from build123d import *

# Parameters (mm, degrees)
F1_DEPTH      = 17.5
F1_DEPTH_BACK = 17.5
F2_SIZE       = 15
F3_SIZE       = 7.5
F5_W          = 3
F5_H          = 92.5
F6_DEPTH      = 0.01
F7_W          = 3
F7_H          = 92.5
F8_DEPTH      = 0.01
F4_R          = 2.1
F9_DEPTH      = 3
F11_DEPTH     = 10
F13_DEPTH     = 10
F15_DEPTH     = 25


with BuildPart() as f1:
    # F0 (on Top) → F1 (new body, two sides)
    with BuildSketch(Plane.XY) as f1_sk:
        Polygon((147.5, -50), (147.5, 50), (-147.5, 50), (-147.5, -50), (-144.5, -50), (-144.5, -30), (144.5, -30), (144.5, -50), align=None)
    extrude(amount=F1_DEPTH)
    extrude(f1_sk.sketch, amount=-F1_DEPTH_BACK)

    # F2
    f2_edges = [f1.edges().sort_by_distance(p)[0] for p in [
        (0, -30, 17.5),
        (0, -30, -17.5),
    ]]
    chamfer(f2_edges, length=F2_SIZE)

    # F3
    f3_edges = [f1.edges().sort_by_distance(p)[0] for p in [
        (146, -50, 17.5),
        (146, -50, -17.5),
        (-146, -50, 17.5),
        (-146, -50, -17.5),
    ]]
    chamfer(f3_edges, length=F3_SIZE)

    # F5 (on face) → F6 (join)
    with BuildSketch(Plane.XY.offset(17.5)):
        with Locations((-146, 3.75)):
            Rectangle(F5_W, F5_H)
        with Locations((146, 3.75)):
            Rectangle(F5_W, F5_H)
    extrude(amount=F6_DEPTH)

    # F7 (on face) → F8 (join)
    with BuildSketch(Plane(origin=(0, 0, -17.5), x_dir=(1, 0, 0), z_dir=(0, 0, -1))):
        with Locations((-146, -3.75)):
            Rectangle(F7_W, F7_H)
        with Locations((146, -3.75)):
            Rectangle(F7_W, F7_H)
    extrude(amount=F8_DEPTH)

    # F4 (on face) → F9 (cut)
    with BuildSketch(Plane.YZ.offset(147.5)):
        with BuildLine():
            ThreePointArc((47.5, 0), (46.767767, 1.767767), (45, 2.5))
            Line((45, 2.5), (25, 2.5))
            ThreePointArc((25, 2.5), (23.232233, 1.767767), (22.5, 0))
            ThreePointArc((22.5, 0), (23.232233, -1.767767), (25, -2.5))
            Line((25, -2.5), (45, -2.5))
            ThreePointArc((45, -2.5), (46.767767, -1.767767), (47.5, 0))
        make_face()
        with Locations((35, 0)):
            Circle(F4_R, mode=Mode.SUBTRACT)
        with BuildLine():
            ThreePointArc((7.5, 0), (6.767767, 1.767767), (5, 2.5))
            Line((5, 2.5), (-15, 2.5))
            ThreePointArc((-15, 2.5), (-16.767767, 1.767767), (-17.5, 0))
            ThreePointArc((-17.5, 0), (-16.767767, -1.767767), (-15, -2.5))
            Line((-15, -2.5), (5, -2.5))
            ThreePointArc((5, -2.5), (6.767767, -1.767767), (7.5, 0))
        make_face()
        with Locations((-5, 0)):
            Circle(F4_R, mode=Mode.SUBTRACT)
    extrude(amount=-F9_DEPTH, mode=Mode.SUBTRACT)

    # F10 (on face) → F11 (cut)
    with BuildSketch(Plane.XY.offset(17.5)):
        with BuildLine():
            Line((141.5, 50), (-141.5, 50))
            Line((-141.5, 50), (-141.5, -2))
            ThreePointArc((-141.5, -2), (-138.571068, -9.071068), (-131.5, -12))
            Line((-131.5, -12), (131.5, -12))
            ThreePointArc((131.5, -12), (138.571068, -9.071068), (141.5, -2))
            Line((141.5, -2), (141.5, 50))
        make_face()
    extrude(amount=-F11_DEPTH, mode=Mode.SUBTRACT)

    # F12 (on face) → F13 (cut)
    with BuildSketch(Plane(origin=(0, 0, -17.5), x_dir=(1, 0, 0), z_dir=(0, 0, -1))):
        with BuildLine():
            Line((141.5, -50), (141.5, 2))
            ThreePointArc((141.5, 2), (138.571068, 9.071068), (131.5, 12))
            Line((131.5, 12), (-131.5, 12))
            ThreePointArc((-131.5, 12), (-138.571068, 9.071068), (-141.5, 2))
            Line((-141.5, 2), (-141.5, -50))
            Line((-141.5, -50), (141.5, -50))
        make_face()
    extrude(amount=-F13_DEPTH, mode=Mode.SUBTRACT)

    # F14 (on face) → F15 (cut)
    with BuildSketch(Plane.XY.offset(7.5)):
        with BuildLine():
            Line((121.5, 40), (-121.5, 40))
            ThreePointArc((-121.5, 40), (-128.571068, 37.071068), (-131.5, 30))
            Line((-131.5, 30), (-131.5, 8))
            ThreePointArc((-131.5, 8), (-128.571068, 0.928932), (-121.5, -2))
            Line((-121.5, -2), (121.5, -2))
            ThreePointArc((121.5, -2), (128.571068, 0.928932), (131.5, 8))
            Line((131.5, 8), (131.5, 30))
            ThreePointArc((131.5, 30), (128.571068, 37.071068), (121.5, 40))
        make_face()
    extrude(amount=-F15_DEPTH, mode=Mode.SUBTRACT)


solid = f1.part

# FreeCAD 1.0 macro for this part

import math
import FreeCAD as App
import Part
import Sketcher
Q = App.Units.Quantity


def edges_at(feature, points):
    """Names of the edges that pass closest to the given points."""
    edges = feature.Shape.Edges
    near = lambda p: min(range(len(edges)), key=lambda i: edges[i].distToShape(Part.Vertex(*p))[0])
    return sorted({f"Edge{near(p) + 1}" for p in points})

doc = App.newDocument("Part")
body = doc.addObject("PartDesign::Body", "Body")

# Sketch on XY plane
sketch1 = doc.addObject("Sketcher::SketchObject", "Sketch")
body.addObject(sketch1)
sketch1.AttachmentSupport = (doc.XY_Plane, [""])
sketch1.MapMode = "FlatFace"
sketch1.addGeometry(Part.LineSegment(App.Vector(147.5, -50, 0), App.Vector(147.5, 50, 0)), False)
sketch1.addGeometry(Part.LineSegment(App.Vector(147.5, 50, 0), App.Vector(-147.5, 50, 0)), False)
sketch1.addGeometry(Part.LineSegment(App.Vector(-147.5, 50, 0), App.Vector(-147.5, -50, 0)), False)
sketch1.addGeometry(Part.LineSegment(App.Vector(-147.5, -50, 0), App.Vector(-144.5, -50, 0)), False)
sketch1.addGeometry(Part.LineSegment(App.Vector(-144.5, -50, 0), App.Vector(-144.5, -30, 0)), False)
sketch1.addGeometry(Part.LineSegment(App.Vector(-144.5, -30, 0), App.Vector(144.5, -30, 0)), False)
sketch1.addGeometry(Part.LineSegment(App.Vector(144.5, -30, 0), App.Vector(144.5, -50, 0)), False)
sketch1.addGeometry(Part.LineSegment(App.Vector(144.5, -50, 0), App.Vector(147.5, -50, 0)), False)
sketch1.addConstraint(Sketcher.Constraint("Coincident", 0, 2, 1, 1))
sketch1.addConstraint(Sketcher.Constraint("Coincident", 1, 2, 2, 1))
sketch1.addConstraint(Sketcher.Constraint("Coincident", 2, 2, 3, 1))
sketch1.addConstraint(Sketcher.Constraint("Coincident", 3, 2, 4, 1))
sketch1.addConstraint(Sketcher.Constraint("Coincident", 4, 2, 5, 1))
sketch1.addConstraint(Sketcher.Constraint("Coincident", 5, 2, 6, 1))
sketch1.addConstraint(Sketcher.Constraint("Coincident", 6, 2, 7, 1))
sketch1.addConstraint(Sketcher.Constraint("Coincident", 7, 2, 0, 1))
sketch1.addConstraint(Sketcher.Constraint("Vertical", 0))
sketch1.addConstraint(Sketcher.Constraint("Horizontal", 1))
sketch1.addConstraint(Sketcher.Constraint("Vertical", 2))
sketch1.addConstraint(Sketcher.Constraint("Horizontal", 3))
sketch1.addConstraint(Sketcher.Constraint("Vertical", 4))
sketch1.addConstraint(Sketcher.Constraint("Horizontal", 5))
sketch1.addConstraint(Sketcher.Constraint("Vertical", 6))
sketch1.addConstraint(Sketcher.Constraint("Horizontal", 7))
sketch1.addConstraint(Sketcher.Constraint("Symmetric", 0, 2, 2, 2, -1, 1))
sketch1.addConstraint(Sketcher.Constraint("Symmetric", 3, 2, 6, 2, -2))
sketch1.addConstraint(Sketcher.Constraint("DistanceX", 1, 2, 1, 1, Q("295 mm")))
sketch1.addConstraint(Sketcher.Constraint("DistanceX", 3, 1, 3, 2, Q("3 mm")))
sketch1.addConstraint(Sketcher.Constraint("DistanceY", 0, 1, 0, 2, Q("100 mm")))
sketch1.addConstraint(Sketcher.Constraint("DistanceY", 4, 1, 4, 2, Q("20 mm")))
pad1 = doc.addObject("PartDesign::Pad", "Pad")
body.addObject(pad1)
pad1.Profile = sketch1
pad1.Type = "TwoLengths"
pad1.Length = 17.5
pad1.Length2 = 17.5
doc.recompute()

chamfer = doc.addObject("PartDesign::Chamfer", "Chamfer")
body.addObject(chamfer)
chamfer.Base = (pad1, edges_at(pad1, [(0, -30, 17.5), (0, -30, -17.5)]))
chamfer.Size = 15
doc.recompute()

chamfer2 = doc.addObject("PartDesign::Chamfer", "Chamfer001")
body.addObject(chamfer2)
chamfer2.Base = (chamfer, edges_at(chamfer, [
    (146, -50, 17.5),
    (146, -50, -17.5),
    (-146, -50, 17.5),
    (-146, -50, -17.5),
]))
chamfer2.Size = 7.5

# Sketch on XY plane
sketch2 = doc.addObject("Sketcher::SketchObject", "Sketch001")
body.addObject(sketch2)
sketch2.AttachmentSupport = (doc.XY_Plane, [""])
sketch2.MapMode = "FlatFace"
sketch2.AttachmentOffset = App.Placement(App.Vector(0, 0, 17.5), App.Rotation())
sketch2.addGeometry(Part.LineSegment(App.Vector(-147.5, 50, 0), App.Vector(-147.5, -42.5, 0)), False)
sketch2.addGeometry(Part.LineSegment(App.Vector(-147.5, -42.5, 0), App.Vector(-144.5, -42.5, 0)), False)
sketch2.addGeometry(Part.LineSegment(App.Vector(-144.5, -42.5, 0), App.Vector(-144.5, 50, 0)), False)
sketch2.addGeometry(Part.LineSegment(App.Vector(-144.5, 50, 0), App.Vector(-147.5, 50, 0)), False)
sketch2.addGeometry(Part.LineSegment(App.Vector(144.5, 50, 0), App.Vector(144.5, -42.5, 0)), False)
sketch2.addGeometry(Part.LineSegment(App.Vector(144.5, -42.5, 0), App.Vector(147.5, -42.5, 0)), False)
sketch2.addGeometry(Part.LineSegment(App.Vector(147.5, -42.5, 0), App.Vector(147.5, 50, 0)), False)
sketch2.addGeometry(Part.LineSegment(App.Vector(147.5, 50, 0), App.Vector(144.5, 50, 0)), False)
sketch2.addConstraint(Sketcher.Constraint("Coincident", 0, 2, 1, 1))
sketch2.addConstraint(Sketcher.Constraint("Coincident", 1, 2, 2, 1))
sketch2.addConstraint(Sketcher.Constraint("Coincident", 2, 2, 3, 1))
sketch2.addConstraint(Sketcher.Constraint("Coincident", 3, 2, 0, 1))
sketch2.addConstraint(Sketcher.Constraint("Coincident", 4, 2, 5, 1))
sketch2.addConstraint(Sketcher.Constraint("Coincident", 5, 2, 6, 1))
sketch2.addConstraint(Sketcher.Constraint("Coincident", 6, 2, 7, 1))
sketch2.addConstraint(Sketcher.Constraint("Coincident", 7, 2, 4, 1))
sketch2.addConstraint(Sketcher.Constraint("Vertical", 0))
sketch2.addConstraint(Sketcher.Constraint("Horizontal", 1))
sketch2.addConstraint(Sketcher.Constraint("Vertical", 2))
sketch2.addConstraint(Sketcher.Constraint("Horizontal", 3))
sketch2.addConstraint(Sketcher.Constraint("Vertical", 4))
sketch2.addConstraint(Sketcher.Constraint("Horizontal", 5))
sketch2.addConstraint(Sketcher.Constraint("Vertical", 6))
sketch2.addConstraint(Sketcher.Constraint("Horizontal", 7))
sketch2.addConstraint(Sketcher.Constraint("Symmetric", 1, 2, 4, 2, -2))
sketch2.addConstraint(Sketcher.Constraint("Symmetric", 3, 2, 6, 2, -2))
sketch2.addConstraint(Sketcher.Constraint("DistanceX", 1, 1, 1, 2, Q("3 mm")))
sketch2.addConstraint(Sketcher.Constraint("DistanceY", 0, 2, 0, 1, Q("92.5 mm")))
sketch2.addConstraint(Sketcher.Constraint("DistanceY", -1, 1, 2, 2, Q("50 mm")))
sketch2.addConstraint(Sketcher.Constraint("DistanceX", 1, 2, 4, 2, Q("289 mm")))
pad2 = doc.addObject("PartDesign::Pad", "Pad001")
body.addObject(pad2)
pad2.Profile = sketch2
pad2.Length = 0.01

# Sketch on XY plane
sketch3 = doc.addObject("Sketcher::SketchObject", "Sketch002")
body.addObject(sketch3)
sketch3.AttachmentSupport = (doc.XY_Plane, [""])
sketch3.MapMode = "FlatFace"
sketch3.AttachmentOffset = App.Placement(App.Vector(0, 0, -17.5), App.Rotation())
sketch3.addGeometry(Part.LineSegment(App.Vector(-147.5, -42.5, 0), App.Vector(-147.5, 50, 0)), False)
sketch3.addGeometry(Part.LineSegment(App.Vector(-147.5, 50, 0), App.Vector(-144.5, 50, 0)), False)
sketch3.addGeometry(Part.LineSegment(App.Vector(-144.5, 50, 0), App.Vector(-144.5, -42.5, 0)), False)
sketch3.addGeometry(Part.LineSegment(App.Vector(-144.5, -42.5, 0), App.Vector(-147.5, -42.5, 0)), False)
sketch3.addGeometry(Part.LineSegment(App.Vector(144.5, -42.5, 0), App.Vector(144.5, 50, 0)), False)
sketch3.addGeometry(Part.LineSegment(App.Vector(144.5, 50, 0), App.Vector(147.5, 50, 0)), False)
sketch3.addGeometry(Part.LineSegment(App.Vector(147.5, 50, 0), App.Vector(147.5, -42.5, 0)), False)
sketch3.addGeometry(Part.LineSegment(App.Vector(147.5, -42.5, 0), App.Vector(144.5, -42.5, 0)), False)
sketch3.addConstraint(Sketcher.Constraint("Coincident", 0, 2, 1, 1))
sketch3.addConstraint(Sketcher.Constraint("Coincident", 1, 2, 2, 1))
sketch3.addConstraint(Sketcher.Constraint("Coincident", 2, 2, 3, 1))
sketch3.addConstraint(Sketcher.Constraint("Coincident", 3, 2, 0, 1))
sketch3.addConstraint(Sketcher.Constraint("Coincident", 4, 2, 5, 1))
sketch3.addConstraint(Sketcher.Constraint("Coincident", 5, 2, 6, 1))
sketch3.addConstraint(Sketcher.Constraint("Coincident", 6, 2, 7, 1))
sketch3.addConstraint(Sketcher.Constraint("Coincident", 7, 2, 4, 1))
sketch3.addConstraint(Sketcher.Constraint("Vertical", 0))
sketch3.addConstraint(Sketcher.Constraint("Horizontal", 1))
sketch3.addConstraint(Sketcher.Constraint("Vertical", 2))
sketch3.addConstraint(Sketcher.Constraint("Horizontal", 3))
sketch3.addConstraint(Sketcher.Constraint("Vertical", 4))
sketch3.addConstraint(Sketcher.Constraint("Horizontal", 5))
sketch3.addConstraint(Sketcher.Constraint("Vertical", 6))
sketch3.addConstraint(Sketcher.Constraint("Horizontal", 7))
sketch3.addConstraint(Sketcher.Constraint("Symmetric", 1, 2, 4, 2, -2))
sketch3.addConstraint(Sketcher.Constraint("Symmetric", 3, 2, 6, 2, -2))
sketch3.addConstraint(Sketcher.Constraint("DistanceX", 1, 1, 1, 2, Q("3 mm")))
sketch3.addConstraint(Sketcher.Constraint("DistanceY", 0, 1, 0, 2, Q("92.5 mm")))
sketch3.addConstraint(Sketcher.Constraint("DistanceY", -1, 1, 0, 2, Q("50 mm")))
sketch3.addConstraint(Sketcher.Constraint("DistanceX", 1, 2, 4, 2, Q("289 mm")))
pad3 = doc.addObject("PartDesign::Pad", "Pad002")
body.addObject(pad3)
pad3.Profile = sketch3
pad3.Length = 0.01
pad3.Reversed = True

# Sketch on YZ plane
sketch4 = doc.addObject("Sketcher::SketchObject", "Sketch003")
body.addObject(sketch4)
sketch4.AttachmentSupport = (doc.YZ_Plane, [""])
sketch4.MapMode = "FlatFace"
sketch4.AttachmentOffset = App.Placement(App.Vector(0, 0, 147.5), App.Rotation())
sketch4.addGeometry(Part.ArcOfCircle(Part.Circle(App.Vector(45, 0, 0), App.Vector(0, 0, 1), 2.5), math.radians(0), math.radians(90)), False)
sketch4.addGeometry(Part.LineSegment(App.Vector(45, 2.5, 0), App.Vector(25, 2.5, 0)), False)
sketch4.addGeometry(Part.ArcOfCircle(Part.Circle(App.Vector(25, 0, 0), App.Vector(0, 0, 1), 2.5), math.radians(90), math.radians(180)), False)
sketch4.addGeometry(Part.ArcOfCircle(Part.Circle(App.Vector(25, 0, 0), App.Vector(0, 0, 1), 2.5), math.radians(180), math.radians(270)), False)
sketch4.addGeometry(Part.LineSegment(App.Vector(25, -2.5, 0), App.Vector(45, -2.5, 0)), False)
sketch4.addGeometry(Part.ArcOfCircle(Part.Circle(App.Vector(45, 0, 0), App.Vector(0, 0, 1), 2.5), math.radians(-90), math.radians(0)), False)
sketch4.addGeometry(Part.Circle(App.Vector(35, 0, 0), App.Vector(0, 0, 1), 2.1), False)
sketch4.addGeometry(Part.ArcOfCircle(Part.Circle(App.Vector(5, 0, 0), App.Vector(0, 0, 1), 2.5), math.radians(0), math.radians(90)), False)
sketch4.addGeometry(Part.LineSegment(App.Vector(5, 2.5, 0), App.Vector(-15, 2.5, 0)), False)
sketch4.addGeometry(Part.ArcOfCircle(Part.Circle(App.Vector(-15, 0, 0), App.Vector(0, 0, 1), 2.5), math.radians(90), math.radians(180)), False)
sketch4.addGeometry(Part.ArcOfCircle(Part.Circle(App.Vector(-15, 0, 0), App.Vector(0, 0, 1), 2.5), math.radians(180), math.radians(270)), False)
sketch4.addGeometry(Part.LineSegment(App.Vector(-15, -2.5, 0), App.Vector(5, -2.5, 0)), False)
sketch4.addGeometry(Part.ArcOfCircle(Part.Circle(App.Vector(5, 0, 0), App.Vector(0, 0, 1), 2.5), math.radians(-90), math.radians(0)), False)
sketch4.addGeometry(Part.Circle(App.Vector(-5, 0, 0), App.Vector(0, 0, 1), 2.1), False)
sketch4.addConstraint(Sketcher.Constraint("Tangent", 0, 2, 1, 1))
sketch4.addConstraint(Sketcher.Constraint("Tangent", 1, 2, 2, 1))
sketch4.addConstraint(Sketcher.Constraint("Tangent", 2, 2, 3, 1))
sketch4.addConstraint(Sketcher.Constraint("Tangent", 3, 2, 4, 1))
sketch4.addConstraint(Sketcher.Constraint("Tangent", 4, 2, 5, 1))
sketch4.addConstraint(Sketcher.Constraint("Tangent", 5, 2, 0, 1))
sketch4.addConstraint(Sketcher.Constraint("Tangent", 7, 2, 8, 1))
sketch4.addConstraint(Sketcher.Constraint("Tangent", 8, 2, 9, 1))
sketch4.addConstraint(Sketcher.Constraint("Tangent", 9, 2, 10, 1))
sketch4.addConstraint(Sketcher.Constraint("Tangent", 10, 2, 11, 1))
sketch4.addConstraint(Sketcher.Constraint("Tangent", 11, 2, 12, 1))
sketch4.addConstraint(Sketcher.Constraint("Tangent", 12, 2, 7, 1))
sketch4.addConstraint(Sketcher.Constraint("Horizontal", 1))
sketch4.addConstraint(Sketcher.Constraint("Horizontal", 4))
sketch4.addConstraint(Sketcher.Constraint("Horizontal", 8))
sketch4.addConstraint(Sketcher.Constraint("Horizontal", 11))
sketch4.addConstraint(Sketcher.Constraint("Equal", 0, 2))
sketch4.addConstraint(Sketcher.Constraint("Equal", 2, 3))
sketch4.addConstraint(Sketcher.Constraint("Equal", 5, 7))
sketch4.addConstraint(Sketcher.Constraint("Equal", 7, 9))
sketch4.addConstraint(Sketcher.Constraint("Equal", 9, 10))
sketch4.addConstraint(Sketcher.Constraint("Equal", 6, 13))
sketch4.addConstraint(Sketcher.Constraint("Symmetric", 7, 3, 13, 3, -1, 1))
sketch4.addConstraint(Sketcher.Constraint("PointOnObject", 0, 3, -1))
sketch4.addConstraint(Sketcher.Constraint("PointOnObject", 6, 3, -1))
sketch4.addConstraint(Sketcher.Constraint("PointOnObject", 7, 3, -1))
sketch4.addConstraint(Sketcher.Constraint("PointOnObject", 2, 2, -1))
sketch4.addConstraint(Sketcher.Constraint("PointOnObject", 5, 2, -1))
sketch4.addConstraint(Sketcher.Constraint("PointOnObject", 9, 2, -1))
sketch4.addConstraint(Sketcher.Constraint("PointOnObject", 12, 2, -1))
sketch4.addConstraint(Sketcher.Constraint("Equal", 4, 8))
sketch4.addConstraint(Sketcher.Constraint("Diameter", 6, Q("4.2 mm")))
sketch4.addConstraint(Sketcher.Constraint("Radius", 0, Q("2.5 mm")))
sketch4.addConstraint(Sketcher.Constraint("DistanceX", 1, 2, 1, 1, Q("20 mm")))
sketch4.addConstraint(Sketcher.Constraint("DistanceX", -1, 1, 0, 3, Q("45 mm")))
sketch4.addConstraint(Sketcher.Constraint("DistanceX", -1, 1, 6, 3, Q("35 mm")))
sketch4.addConstraint(Sketcher.Constraint("DistanceX", -1, 1, 7, 3, Q("5 mm")))
pocket1 = doc.addObject("PartDesign::Pocket", "Pocket")
body.addObject(pocket1)
pocket1.Profile = sketch4
pocket1.Length = 3

# Sketch on XY plane
sketch5 = doc.addObject("Sketcher::SketchObject", "Sketch004")
body.addObject(sketch5)
sketch5.AttachmentSupport = (doc.XY_Plane, [""])
sketch5.MapMode = "FlatFace"
sketch5.AttachmentOffset = App.Placement(App.Vector(0, 0, 17.5), App.Rotation())
sketch5.addGeometry(Part.LineSegment(App.Vector(142, 50, 0), App.Vector(-142, 50, 0)), False)
sketch5.addGeometry(Part.LineSegment(App.Vector(-142, 50, 0), App.Vector(-142, -2, 0)), False)
sketch5.addGeometry(Part.ArcOfCircle(Part.Circle(App.Vector(-132, -2, 0), App.Vector(0, 0, 1), 10), math.radians(180), math.radians(270)), False)
sketch5.addGeometry(Part.LineSegment(App.Vector(-132, -12, 0), App.Vector(132, -12, 0)), False)
sketch5.addGeometry(Part.ArcOfCircle(Part.Circle(App.Vector(132, -2, 0), App.Vector(0, 0, 1), 10), math.radians(-90), math.radians(0)), False)
sketch5.addGeometry(Part.LineSegment(App.Vector(142, -2, 0), App.Vector(142, 50, 0)), False)
sketch5.addConstraint(Sketcher.Constraint("Coincident", 0, 2, 1, 1))
sketch5.addConstraint(Sketcher.Constraint("Tangent", 1, 2, 2, 1))
sketch5.addConstraint(Sketcher.Constraint("Tangent", 2, 2, 3, 1))
sketch5.addConstraint(Sketcher.Constraint("Tangent", 3, 2, 4, 1))
sketch5.addConstraint(Sketcher.Constraint("Tangent", 4, 2, 5, 1))
sketch5.addConstraint(Sketcher.Constraint("Coincident", 5, 2, 0, 1))
sketch5.addConstraint(Sketcher.Constraint("Horizontal", 0))
sketch5.addConstraint(Sketcher.Constraint("Vertical", 1))
sketch5.addConstraint(Sketcher.Constraint("Horizontal", 3))
sketch5.addConstraint(Sketcher.Constraint("Vertical", 5))
sketch5.addConstraint(Sketcher.Constraint("Equal", 2, 4))
sketch5.addConstraint(Sketcher.Constraint("Radius", 2, Q("9.999999 mm")))
sketch5.addConstraint(Sketcher.Constraint("DistanceX", 0, 2, 0, 1, Q("283 mm")))
sketch5.addConstraint(Sketcher.Constraint("DistanceY", 1, 2, 1, 1, Q("52 mm")))
sketch5.addConstraint(Sketcher.Constraint("DistanceY", 2, 3, -1, 1, Q("2.000001 mm")))
sketch5.addConstraint(Sketcher.Constraint("DistanceX", 2, 3, -1, 1, Q("131.500001 mm")))
pocket2 = doc.addObject("PartDesign::Pocket", "Pocket001")
body.addObject(pocket2)
pocket2.Profile = sketch5
pocket2.Length = 10

# Sketch on XY plane
sketch6 = doc.addObject("Sketcher::SketchObject", "Sketch005")
body.addObject(sketch6)
sketch6.AttachmentSupport = (doc.XY_Plane, [""])
sketch6.MapMode = "FlatFace"
sketch6.AttachmentOffset = App.Placement(App.Vector(0, 0, -17.5), App.Rotation())
sketch6.addGeometry(Part.LineSegment(App.Vector(142, 50, 0), App.Vector(142, -2, 0)), False)
sketch6.addGeometry(Part.ArcOfCircle(Part.Circle(App.Vector(132, -2, 0), App.Vector(0, 0, 1), 10), math.radians(-90), math.radians(0)), False)
sketch6.addGeometry(Part.LineSegment(App.Vector(132, -12, 0), App.Vector(-132, -12, 0)), False)
sketch6.addGeometry(Part.ArcOfCircle(Part.Circle(App.Vector(-132, -2, 0), App.Vector(0, 0, 1), 10), math.radians(180), math.radians(270)), False)
sketch6.addGeometry(Part.LineSegment(App.Vector(-142, -2, 0), App.Vector(-142, 50, 0)), False)
sketch6.addGeometry(Part.LineSegment(App.Vector(-142, 50, 0), App.Vector(142, 50, 0)), False)
sketch6.addConstraint(Sketcher.Constraint("Tangent", 0, 2, 1, 2))
sketch6.addConstraint(Sketcher.Constraint("Tangent", 1, 1, 2, 1))
sketch6.addConstraint(Sketcher.Constraint("Tangent", 2, 2, 3, 2))
sketch6.addConstraint(Sketcher.Constraint("Tangent", 3, 1, 4, 1))
sketch6.addConstraint(Sketcher.Constraint("Coincident", 4, 2, 5, 1))
sketch6.addConstraint(Sketcher.Constraint("Coincident", 5, 2, 0, 1))
sketch6.addConstraint(Sketcher.Constraint("Vertical", 0))
sketch6.addConstraint(Sketcher.Constraint("Horizontal", 2))
sketch6.addConstraint(Sketcher.Constraint("Vertical", 4))
sketch6.addConstraint(Sketcher.Constraint("Horizontal", 5))
sketch6.addConstraint(Sketcher.Constraint("Equal", 1, 3))
sketch6.addConstraint(Sketcher.Constraint("Radius", 1, Q("9.999999 mm")))
sketch6.addConstraint(Sketcher.Constraint("DistanceX", 2, 2, 2, 1, Q("263 mm")))
sketch6.addConstraint(Sketcher.Constraint("DistanceY", 0, 2, 0, 1, Q("52 mm")))
sketch6.addConstraint(Sketcher.Constraint("DistanceY", 1, 3, -1, 1, Q("2.000001 mm")))
sketch6.addConstraint(Sketcher.Constraint("DistanceX", -1, 1, 1, 3, Q("131.500001 mm")))
pocket3 = doc.addObject("PartDesign::Pocket", "Pocket002")
body.addObject(pocket3)
pocket3.Profile = sketch6
pocket3.Length = 10
pocket3.Reversed = True

# Sketch on XY plane
sketch7 = doc.addObject("Sketcher::SketchObject", "Sketch006")
body.addObject(sketch7)
sketch7.AttachmentSupport = (doc.XY_Plane, [""])
sketch7.MapMode = "FlatFace"
sketch7.AttachmentOffset = App.Placement(App.Vector(0, 0, 7.5), App.Rotation())
sketch7.addGeometry(Part.LineSegment(App.Vector(122, 40, 0), App.Vector(-122, 40, 0)), False)
sketch7.addGeometry(Part.ArcOfCircle(Part.Circle(App.Vector(-122, 30, 0), App.Vector(0, 0, 1), 10), math.radians(90), math.radians(180)), False)
sketch7.addGeometry(Part.LineSegment(App.Vector(-132, 30, 0), App.Vector(-132, 8, 0)), False)
sketch7.addGeometry(Part.ArcOfCircle(Part.Circle(App.Vector(-122, 8, 0), App.Vector(0, 0, 1), 10), math.radians(180), math.radians(270)), False)
sketch7.addGeometry(Part.LineSegment(App.Vector(-122, -2, 0), App.Vector(122, -2, 0)), False)
sketch7.addGeometry(Part.ArcOfCircle(Part.Circle(App.Vector(122, 8, 0), App.Vector(0, 0, 1), 10), math.radians(-90), math.radians(0)), False)
sketch7.addGeometry(Part.LineSegment(App.Vector(132, 8, 0), App.Vector(132, 30, 0)), False)
sketch7.addGeometry(Part.ArcOfCircle(Part.Circle(App.Vector(122, 30, 0), App.Vector(0, 0, 1), 10), math.radians(0), math.radians(90)), False)
sketch7.addConstraint(Sketcher.Constraint("Tangent", 0, 2, 1, 1))
sketch7.addConstraint(Sketcher.Constraint("Tangent", 1, 2, 2, 1))
sketch7.addConstraint(Sketcher.Constraint("Tangent", 2, 2, 3, 1))
sketch7.addConstraint(Sketcher.Constraint("Tangent", 3, 2, 4, 1))
sketch7.addConstraint(Sketcher.Constraint("Tangent", 4, 2, 5, 1))
sketch7.addConstraint(Sketcher.Constraint("Tangent", 5, 2, 6, 1))
sketch7.addConstraint(Sketcher.Constraint("Tangent", 6, 2, 7, 1))
sketch7.addConstraint(Sketcher.Constraint("Tangent", 7, 2, 0, 1))
sketch7.addConstraint(Sketcher.Constraint("Horizontal", 0))
sketch7.addConstraint(Sketcher.Constraint("Vertical", 2))
sketch7.addConstraint(Sketcher.Constraint("Horizontal", 4))
sketch7.addConstraint(Sketcher.Constraint("Vertical", 6))
sketch7.addConstraint(Sketcher.Constraint("Equal", 1, 3))
sketch7.addConstraint(Sketcher.Constraint("Equal", 3, 5))
sketch7.addConstraint(Sketcher.Constraint("Equal", 5, 7))
sketch7.addConstraint(Sketcher.Constraint("Radius", 1, Q("9.999999 mm")))
sketch7.addConstraint(Sketcher.Constraint("DistanceX", 0, 2, 0, 1, Q("243 mm")))
sketch7.addConstraint(Sketcher.Constraint("DistanceY", 2, 2, 2, 1, Q("22 mm")))
sketch7.addConstraint(Sketcher.Constraint("DistanceY", -1, 1, 1, 3, Q("30.000001 mm")))
sketch7.addConstraint(Sketcher.Constraint("DistanceX", 1, 3, -1, 1, Q("121.500001 mm")))
pocket4 = doc.addObject("PartDesign::Pocket", "Pocket003")
body.addObject(pocket4)
pocket4.Profile = sketch7
pocket4.Length = 25

doc.recompute()
